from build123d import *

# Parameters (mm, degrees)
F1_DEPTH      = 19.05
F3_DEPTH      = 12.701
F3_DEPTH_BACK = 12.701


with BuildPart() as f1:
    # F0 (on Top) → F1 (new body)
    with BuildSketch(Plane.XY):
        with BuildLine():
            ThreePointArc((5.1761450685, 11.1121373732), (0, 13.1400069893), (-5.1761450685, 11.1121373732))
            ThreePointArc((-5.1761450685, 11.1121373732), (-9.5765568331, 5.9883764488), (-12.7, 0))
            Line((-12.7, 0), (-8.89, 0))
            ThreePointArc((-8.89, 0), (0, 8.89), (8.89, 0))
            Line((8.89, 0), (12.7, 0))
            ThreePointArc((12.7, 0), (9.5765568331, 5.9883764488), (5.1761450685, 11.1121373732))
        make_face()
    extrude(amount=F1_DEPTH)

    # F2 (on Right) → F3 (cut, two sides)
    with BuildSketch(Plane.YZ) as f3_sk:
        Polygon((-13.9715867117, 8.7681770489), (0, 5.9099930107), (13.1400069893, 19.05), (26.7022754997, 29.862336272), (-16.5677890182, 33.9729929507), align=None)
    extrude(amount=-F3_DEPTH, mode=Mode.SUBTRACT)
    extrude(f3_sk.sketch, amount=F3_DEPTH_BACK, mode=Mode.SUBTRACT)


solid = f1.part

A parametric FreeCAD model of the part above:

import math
import FreeCAD as App
import Part
import Sketcher
from FreeCAD import Vector
Q = App.Units.Quantity


def add_polygon(sketch, points):
    """Adds a closed chain of lines whose ends are joined by coincident constraints."""
    first, n = sketch.GeometryCount, len(points)
    for a, b in zip(points, points[1:] + points[:1]):
        sketch.addGeometry(Part.LineSegment(App.Vector(*a, 0), App.Vector(*b, 0)), False)
    for i in range(n):
        sketch.addConstraint(Sketcher.Constraint("Coincident", first + i, 2, first + (i + 1) % n, 1))

doc = App.newDocument("Part")
body = doc.addObject("PartDesign::Body", "Body")

sketch1 = doc.addObject("Sketcher::SketchObject", "Sketch")
body.addObject(sketch1)
sketch1.AttachmentSupport = (doc.XY_Plane, [""])
sketch1.MapMode = "FlatFace"
sketch1.addGeometry([
    Part.ArcOfCircle(Part.Circle(Vector(0, 5.520007, 0), Vector(0, 0, 1), 7.62), math.radians(47.212272), math.radians(132.787728)),
    Part.ArcOfCircle(Part.Circle(Vector(14.917046, -10.59586, 0), Vector(0, 0, 1), 29.57995), math.radians(132.787728), math.radians(159.00964)),
    Part.LineSegment(Vector(-12.7, 0, 0), Vector(-8.89, 0, 0)),
    Part.ArcOfCircle(Part.Circle(Vector(0, 0, 0), Vector(0, 0, 1), 8.89), math.radians(0), math.radians(180)),
    Part.LineSegment(Vector(8.89, 0, 0), Vector(12.7, 0, 0)),
    Part.ArcOfCircle(Part.Circle(Vector(-14.917046, -10.59586, 0), Vector(0, 0, 1), 29.57995), math.radians(20.99036), math.radians(47.212272)),
], False)
sketch1.addConstraint([
    Sketcher.Constraint("Tangent", 0, 2, 1, 1),
    Sketcher.Constraint("Coincident", 1, 2, 2, 1),
    Sketcher.Constraint("Coincident", 2, 2, 3, 2),
    Sketcher.Constraint("Coincident", 3, 1, 4, 1),
    Sketcher.Constraint("Coincident", 4, 2, 5, 1),
    Sketcher.Constraint("Tangent", 5, 2, 0, 1),
    Sketcher.Constraint("Horizontal", 2),
    Sketcher.Constraint("Horizontal", 4),
    Sketcher.Constraint("Coincident", 3, 3, -1, 1),
    Sketcher.Constraint("Equal", 1, 5),
    Sketcher.Constraint("Symmetric", 1, 2, 4, 2, -1, 1),
    Sketcher.Constraint("Symmetric", 1, 3, 5, 3, -2),
    Sketcher.Constraint("Radius", 0, Q("0.3 in")),
    Sketcher.Constraint("Radius", 3, Q("0.35 in")),
    Sketcher.Constraint("DistanceX", 2, 1, 2, 2, Q("0.15 in")),
    Sketcher.Constraint("Radius", 1, Q("29.57995 mm")),
    Sketcher.Constraint("DistanceX", 5, 3, 0, 2, Q("0.3835 in")),
])
pad1 = doc.addObject("PartDesign::Pad", "Pad")
body.addObject(pad1)
pad1.Profile = sketch1
pad1.Length = Q("0.75 in")

sketch2 = doc.addObject("Sketcher::SketchObject", "Sketch001")
body.addObject(sketch2)
sketch2.AttachmentSupport = (doc.YZ_Plane, [""])
sketch2.MapMode = "FlatFace"
add_polygon(sketch2, [(-13.971587, 8.768177), (0, 5.909993), (13.140007, 19.05), (26.702275, 29.862336), (-16.567789, 33.972993)])
sketch2.addConstraint([
    Sketcher.Constraint("PointOnObject", 0, 2, -2),
    Sketcher.Constraint("Angle", 1, Q("45 deg")),
    Sketcher.Constraint("DistanceY", -1, 1, 1, 2, Q("0.75 in")),
    Sketcher.Constraint("DistanceY", 0, 2, 3, 2, Q("28.063 mm")),
    Sketcher.Constraint("Distance", 0, Q("14.260941 mm")),
    Sketcher.Constraint("Distance", 2, Q("17.34479 mm")),
    Sketcher.Constraint("DistanceX", 3, 2, -1, 1, Q("16.567789 mm")),
    Sketcher.Constraint("DistanceX", 1, 2, 2, 2, Q("13.562269 mm")),
    Sketcher.Constraint("DistanceY", 4, 2, 2, 2, Q("21.094159 mm")),
    Sketcher.Constraint("Distance", 1, Q("18.582776 mm")),
])
pocket1 = doc.addObject("PartDesign::Pocket", "Pocket")
body.addObject(pocket1)
pocket1.Profile = sketch2
pocket1.Type = "ThroughAll"
pocket1.Midplane = True

doc.recompute()
